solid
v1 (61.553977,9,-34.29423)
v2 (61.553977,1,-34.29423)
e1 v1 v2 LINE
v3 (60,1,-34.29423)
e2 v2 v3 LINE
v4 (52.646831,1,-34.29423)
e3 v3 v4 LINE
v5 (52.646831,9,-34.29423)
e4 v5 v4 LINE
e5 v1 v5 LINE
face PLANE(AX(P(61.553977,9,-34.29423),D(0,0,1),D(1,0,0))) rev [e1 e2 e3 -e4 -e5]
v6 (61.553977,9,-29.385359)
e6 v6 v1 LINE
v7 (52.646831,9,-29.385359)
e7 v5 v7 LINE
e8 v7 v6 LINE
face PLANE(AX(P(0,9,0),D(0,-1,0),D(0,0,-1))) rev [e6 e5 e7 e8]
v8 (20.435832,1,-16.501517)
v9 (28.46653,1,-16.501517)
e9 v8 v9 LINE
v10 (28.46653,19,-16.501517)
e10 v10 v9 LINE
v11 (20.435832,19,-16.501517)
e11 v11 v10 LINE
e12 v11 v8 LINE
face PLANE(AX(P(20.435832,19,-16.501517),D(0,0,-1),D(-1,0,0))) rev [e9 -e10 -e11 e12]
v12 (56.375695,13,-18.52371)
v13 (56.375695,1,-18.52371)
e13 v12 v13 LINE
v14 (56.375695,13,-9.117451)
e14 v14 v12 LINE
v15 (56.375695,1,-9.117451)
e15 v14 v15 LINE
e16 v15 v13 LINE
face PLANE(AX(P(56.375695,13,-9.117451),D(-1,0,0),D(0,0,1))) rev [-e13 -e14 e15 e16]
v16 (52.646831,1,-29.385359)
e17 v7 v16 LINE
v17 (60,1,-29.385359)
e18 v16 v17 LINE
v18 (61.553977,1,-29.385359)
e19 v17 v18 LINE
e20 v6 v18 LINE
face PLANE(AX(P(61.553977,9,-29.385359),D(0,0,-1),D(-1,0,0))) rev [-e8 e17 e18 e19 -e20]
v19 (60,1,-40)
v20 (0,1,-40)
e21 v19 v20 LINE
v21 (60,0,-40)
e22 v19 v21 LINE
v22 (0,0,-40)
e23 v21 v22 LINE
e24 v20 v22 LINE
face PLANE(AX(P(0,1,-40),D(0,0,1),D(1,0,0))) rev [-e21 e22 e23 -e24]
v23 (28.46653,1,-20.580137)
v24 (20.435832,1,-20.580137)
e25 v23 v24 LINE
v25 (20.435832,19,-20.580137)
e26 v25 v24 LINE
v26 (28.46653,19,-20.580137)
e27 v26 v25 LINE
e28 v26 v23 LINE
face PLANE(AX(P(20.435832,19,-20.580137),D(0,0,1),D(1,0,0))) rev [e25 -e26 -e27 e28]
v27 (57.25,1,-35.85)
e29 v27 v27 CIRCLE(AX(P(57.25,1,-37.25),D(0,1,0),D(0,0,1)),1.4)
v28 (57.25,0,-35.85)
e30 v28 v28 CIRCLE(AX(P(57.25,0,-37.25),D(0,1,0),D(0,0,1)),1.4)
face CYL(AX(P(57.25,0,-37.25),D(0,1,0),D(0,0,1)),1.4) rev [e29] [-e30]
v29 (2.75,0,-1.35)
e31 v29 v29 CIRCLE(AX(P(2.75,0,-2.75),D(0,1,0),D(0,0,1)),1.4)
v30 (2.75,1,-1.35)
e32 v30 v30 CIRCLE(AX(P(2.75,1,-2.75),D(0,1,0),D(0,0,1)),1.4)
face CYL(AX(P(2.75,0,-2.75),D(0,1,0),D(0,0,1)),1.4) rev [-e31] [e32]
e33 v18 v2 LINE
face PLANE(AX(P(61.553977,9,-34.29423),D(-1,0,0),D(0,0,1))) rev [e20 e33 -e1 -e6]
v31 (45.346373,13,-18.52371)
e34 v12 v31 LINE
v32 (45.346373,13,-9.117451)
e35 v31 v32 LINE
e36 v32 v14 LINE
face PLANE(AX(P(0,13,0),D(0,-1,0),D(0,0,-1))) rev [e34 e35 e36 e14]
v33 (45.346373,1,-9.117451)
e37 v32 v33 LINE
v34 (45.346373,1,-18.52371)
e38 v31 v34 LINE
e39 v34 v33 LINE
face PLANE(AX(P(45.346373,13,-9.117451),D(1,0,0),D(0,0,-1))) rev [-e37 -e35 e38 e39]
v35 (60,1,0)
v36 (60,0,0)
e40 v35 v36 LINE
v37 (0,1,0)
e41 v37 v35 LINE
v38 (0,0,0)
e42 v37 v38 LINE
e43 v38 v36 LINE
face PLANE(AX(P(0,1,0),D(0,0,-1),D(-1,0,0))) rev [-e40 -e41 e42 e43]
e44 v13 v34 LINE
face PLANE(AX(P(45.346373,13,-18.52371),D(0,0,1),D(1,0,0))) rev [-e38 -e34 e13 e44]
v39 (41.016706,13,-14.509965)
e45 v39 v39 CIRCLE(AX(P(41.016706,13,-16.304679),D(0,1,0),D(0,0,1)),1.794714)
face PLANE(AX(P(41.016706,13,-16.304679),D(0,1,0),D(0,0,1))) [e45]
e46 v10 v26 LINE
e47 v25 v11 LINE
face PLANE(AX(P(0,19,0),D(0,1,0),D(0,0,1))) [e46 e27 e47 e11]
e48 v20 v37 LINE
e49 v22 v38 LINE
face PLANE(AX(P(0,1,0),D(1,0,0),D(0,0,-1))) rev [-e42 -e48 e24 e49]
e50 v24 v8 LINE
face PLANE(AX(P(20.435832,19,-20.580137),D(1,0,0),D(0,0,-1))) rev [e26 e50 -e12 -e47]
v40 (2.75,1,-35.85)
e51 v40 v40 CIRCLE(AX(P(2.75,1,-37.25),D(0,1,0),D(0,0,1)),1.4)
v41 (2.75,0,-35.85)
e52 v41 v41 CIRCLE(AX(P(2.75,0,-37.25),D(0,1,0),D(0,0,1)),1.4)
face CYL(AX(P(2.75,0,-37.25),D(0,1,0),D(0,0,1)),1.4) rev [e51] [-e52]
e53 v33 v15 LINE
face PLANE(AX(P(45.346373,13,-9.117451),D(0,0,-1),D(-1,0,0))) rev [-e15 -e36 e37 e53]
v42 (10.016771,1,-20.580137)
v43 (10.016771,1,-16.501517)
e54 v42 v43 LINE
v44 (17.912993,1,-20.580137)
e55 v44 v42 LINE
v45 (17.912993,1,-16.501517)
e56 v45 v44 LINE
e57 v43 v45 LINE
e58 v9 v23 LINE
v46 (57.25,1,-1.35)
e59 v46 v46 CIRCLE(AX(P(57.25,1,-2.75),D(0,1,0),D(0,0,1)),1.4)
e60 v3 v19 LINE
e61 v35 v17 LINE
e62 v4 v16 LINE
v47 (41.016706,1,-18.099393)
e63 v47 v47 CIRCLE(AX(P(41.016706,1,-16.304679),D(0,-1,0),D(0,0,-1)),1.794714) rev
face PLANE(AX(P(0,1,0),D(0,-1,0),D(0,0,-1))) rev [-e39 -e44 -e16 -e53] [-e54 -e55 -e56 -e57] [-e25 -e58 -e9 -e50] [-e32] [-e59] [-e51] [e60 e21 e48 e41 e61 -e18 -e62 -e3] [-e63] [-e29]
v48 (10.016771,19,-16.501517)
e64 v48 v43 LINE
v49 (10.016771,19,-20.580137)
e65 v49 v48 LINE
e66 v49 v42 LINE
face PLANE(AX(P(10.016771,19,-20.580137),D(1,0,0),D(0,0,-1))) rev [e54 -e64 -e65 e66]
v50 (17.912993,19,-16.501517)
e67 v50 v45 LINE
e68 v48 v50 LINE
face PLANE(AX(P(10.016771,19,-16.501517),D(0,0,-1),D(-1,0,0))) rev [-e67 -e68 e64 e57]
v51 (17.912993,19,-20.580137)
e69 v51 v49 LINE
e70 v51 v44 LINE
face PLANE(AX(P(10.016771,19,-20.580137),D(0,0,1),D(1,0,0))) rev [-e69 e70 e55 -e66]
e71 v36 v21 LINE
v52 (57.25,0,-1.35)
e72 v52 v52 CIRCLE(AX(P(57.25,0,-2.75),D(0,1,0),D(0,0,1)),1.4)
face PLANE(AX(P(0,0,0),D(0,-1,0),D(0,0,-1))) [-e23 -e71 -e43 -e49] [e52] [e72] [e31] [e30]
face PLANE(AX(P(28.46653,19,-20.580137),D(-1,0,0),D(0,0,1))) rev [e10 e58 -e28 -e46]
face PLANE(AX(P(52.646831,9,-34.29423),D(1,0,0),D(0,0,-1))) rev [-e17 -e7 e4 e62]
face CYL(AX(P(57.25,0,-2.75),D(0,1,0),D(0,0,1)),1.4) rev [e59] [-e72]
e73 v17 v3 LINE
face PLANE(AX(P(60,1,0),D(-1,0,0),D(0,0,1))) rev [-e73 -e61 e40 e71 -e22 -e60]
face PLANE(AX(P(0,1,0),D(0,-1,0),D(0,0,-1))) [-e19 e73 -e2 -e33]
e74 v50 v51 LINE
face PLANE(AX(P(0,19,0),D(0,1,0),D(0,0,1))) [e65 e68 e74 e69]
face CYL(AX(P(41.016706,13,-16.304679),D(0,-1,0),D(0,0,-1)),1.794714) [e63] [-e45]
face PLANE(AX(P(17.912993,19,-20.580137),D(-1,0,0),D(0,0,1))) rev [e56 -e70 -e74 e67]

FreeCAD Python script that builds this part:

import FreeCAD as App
import Part
import Sketcher

doc = App.newDocument("Part")
body = doc.addObject("PartDesign::Body", "Body")

# Sketch on XZ plane
sketch1 = body.newObject("Sketcher::SketchObject", "Sketch")
sketch1.AttachmentSupport = (doc.getObject("XZ_Plane"), [""])
sketch1.MapMode = "FlatFace"
sketch1.addGeometry(Part.LineSegment(App.Vector(0, -40, 0), App.Vector(0, 0, 0)), False)
sketch1.addGeometry(Part.LineSegment(App.Vector(0, 0, 0), App.Vector(60, 0, 0)), False)
sketch1.addGeometry(Part.LineSegment(App.Vector(60, 0, 0), App.Vector(60, -40, 0)), False)
sketch1.addGeometry(Part.LineSegment(App.Vector(60, -40, 0), App.Vector(0, -40, 0)), False)
sketch1.addConstraint(Sketcher.Constraint("Coincident", 0, 2, 1, 1))
sketch1.addConstraint(Sketcher.Constraint("Coincident", 1, 2, 2, 1))
sketch1.addConstraint(Sketcher.Constraint("Coincident", 2, 2, 3, 1))
sketch1.addConstraint(Sketcher.Constraint("Coincident", 3, 2, 0, 1))
sketch1.addConstraint(Sketcher.Constraint("Vertical", 0))
sketch1.addConstraint(Sketcher.Constraint("Horizontal", 1))
sketch1.addConstraint(Sketcher.Constraint("Vertical", 2))
sketch1.addConstraint(Sketcher.Constraint("Horizontal", 3))
sketch1.addConstraint(Sketcher.Constraint("Coincident", 0, 2, -1, 1))
sketch1.addConstraint(Sketcher.Constraint("DistanceX", 1, 1, 1, 2, 60.0))
sketch1.addConstraint(Sketcher.Constraint("DistanceY", 0, 1, 0, 2, 40.0))
pad1 = body.newObject("PartDesign::Pad", "Pad")
pad1.Profile = sketch1
pad1.Length = 1
pad1.Reversed = True

# Sketch on XZ plane
sketch2 = body.newObject("Sketcher::SketchObject", "Sketch001")
sketch2.AttachmentSupport = (doc.getObject("XZ_Plane"), [""])
sketch2.MapMode = "FlatFace"
sketch2.AttachmentOffset = App.Placement(App.Vector(0, 0, -1), App.Rotation())
sketch2.addGeometry(Part.Circle(App.Vector(2.8, -37.2, 0), App.Vector(0, 0, 1), 1.4), False)
sketch2.addGeometry(Part.Circle(App.Vector(57.2, -37.2, 0), App.Vector(0, 0, 1), 1.4), False)
sketch2.addGeometry(Part.Circle(App.Vector(57.2, -2.8, 0), App.Vector(0, 0, 1), 1.4), False)
sketch2.addGeometry(Part.Circle(App.Vector(2.8, -2.8, 0), App.Vector(0, 0, 1), 1.4), False)
sketch2.addConstraint(Sketcher.Constraint("Equal", 0, 1))
sketch2.addConstraint(Sketcher.Constraint("Equal", 1, 2))
sketch2.addConstraint(Sketcher.Constraint("Equal", 2, 3))
sketch2.addConstraint(Sketcher.Constraint("Horizontal", 0, 3, 1, 3))
sketch2.addConstraint(Sketcher.Constraint("Horizontal", 2, 3, 3, 3))
sketch2.addConstraint(Sketcher.Constraint("Vertical", 1, 3, 2, 3))
sketch2.addConstraint(Sketcher.Constraint("Vertical", 0, 3, 3, 3))
sketch2.addConstraint(Sketcher.Constraint("Diameter", 0, 2.8))
sketch2.addConstraint(Sketcher.Constraint("DistanceX", 0, 3, 1, 3, 54.5))
sketch2.addConstraint(Sketcher.Constraint("DistanceY", 1, 3, 2, 3, 34.5))
sketch2.addConstraint(Sketcher.Constraint("DistanceX", -1, 1, 0, 3, 2.75))
sketch2.addConstraint(Sketcher.Constraint("DistanceY", 0, 3, -1, 1, 37.25))
pocket1 = body.newObject("PartDesign::Pocket", "Pocket")
pocket1.Profile = sketch2
pocket1.Type = "ThroughAll"
pocket1.Reversed = True

# Sketch on XZ plane
sketch3 = body.newObject("Sketcher::SketchObject", "Sketch002")
sketch3.AttachmentSupport = (doc.getObject("XZ_Plane"), [""])
sketch3.MapMode = "FlatFace"
sketch3.AttachmentOffset = App.Placement(App.Vector(0, 0, -1), App.Rotation())
sketch3.addGeometry(Part.Circle(App.Vector(41, -16.3, 0), App.Vector(0, 0, 1), 1.8), False)
sketch3.addGeometry(Part.LineSegment(App.Vector(45.3, -18.5, 0), App.Vector(45.3, -9.1, 0)), False)
sketch3.addGeometry(Part.LineSegment(App.Vector(45.3, -9.1, 0), App.Vector(56.4, -9.1, 0)), False)
sketch3.addGeometry(Part.LineSegment(App.Vector(56.4, -9.1, 0), App.Vector(56.4, -18.5, 0)), False)
sketch3.addGeometry(Part.LineSegment(App.Vector(56.4, -18.5, 0), App.Vector(45.3, -18.5, 0)), False)
sketch3.addConstraint(Sketcher.Constraint("Coincident", 1, 2, 2, 1))
sketch3.addConstraint(Sketcher.Constraint("Coincident", 2, 2, 3, 1))
sketch3.addConstraint(Sketcher.Constraint("Coincident", 3, 2, 4, 1))
sketch3.addConstraint(Sketcher.Constraint("Coincident", 4, 2, 1, 1))
sketch3.addConstraint(Sketcher.Constraint("Vertical", 1))
sketch3.addConstraint(Sketcher.Constraint("Horizontal", 2))
sketch3.addConstraint(Sketcher.Constraint("Vertical", 3))
sketch3.addConstraint(Sketcher.Constraint("Horizontal", 4))
sketch3.addConstraint(Sketcher.Constraint("Diameter", 0, 3.589428))
sketch3.addConstraint(Sketcher.Constraint("DistanceX", 2, 1, 2, 2, 11.029321))
sketch3.addConstraint(Sketcher.Constraint("DistanceY", 1, 1, 1, 2, 9.40626))
sketch3.addConstraint(Sketcher.Constraint("DistanceY", 0, 3, -1, 1, 16.304679))
sketch3.addConstraint(Sketcher.Constraint("DistanceY", 1, 2, -1, 1, 9.117451))
sketch3.addConstraint(Sketcher.Constraint("DistanceX", 0, 3, 2, 2, 15.358988))
sketch3.addConstraint(Sketcher.Constraint("DistanceX", -1, 1, 0, 3, 41.016706))
pad2 = body.newObject("PartDesign::Pad", "Pad001")
pad2.Profile = sketch3
pad2.Length = 12
pad2.Reversed = True

# Sketch on XZ plane
sketch4 = body.newObject("Sketcher::SketchObject", "Sketch003")
sketch4.AttachmentSupport = (doc.getObject("XZ_Plane"), [""])
sketch4.MapMode = "FlatFace"
sketch4.AttachmentOffset = App.Placement(App.Vector(0, 0, -1), App.Rotation())
sketch4.addGeometry(Part.LineSegment(App.Vector(52.6, -34.3, 0), App.Vector(52.6, -29.4, 0)), False)
sketch4.addGeometry(Part.LineSegment(App.Vector(52.6, -29.4, 0), App.Vector(61.6, -29.4, 0)), False)
sketch4.addGeometry(Part.LineSegment(App.Vector(61.6, -29.4, 0), App.Vector(61.6, -34.3, 0)), False)
sketch4.addGeometry(Part.LineSegment(App.Vector(61.6, -34.3, 0), App.Vector(52.6, -34.3, 0)), False)
sketch4.addConstraint(Sketcher.Constraint("Coincident", 0, 2, 1, 1))
sketch4.addConstraint(Sketcher.Constraint("Coincident", 1, 2, 2, 1))
sketch4.addConstraint(Sketcher.Constraint("Coincident", 2, 2, 3, 1))
sketch4.addConstraint(Sketcher.Constraint("Coincident", 3, 2, 0, 1))
sketch4.addConstraint(Sketcher.Constraint("Vertical", 0))
sketch4.addConstraint(Sketcher.Constraint("Horizontal", 1))
sketch4.addConstraint(Sketcher.Constraint("Vertical", 2))
sketch4.addConstraint(Sketcher.Constraint("Horizontal", 3))
sketch4.addConstraint(Sketcher.Constraint("DistanceY", 0, 1, 0, 2, 4.908871))
sketch4.addConstraint(Sketcher.Constraint("DistanceX", 1, 1, 1, 2, 8.907147))
sketch4.addConstraint(Sketcher.Constraint("DistanceX", -1, 1, 0, 2, 52.646831))
sketch4.addConstraint(Sketcher.Constraint("DistanceY", 0, 2, -1, 1, 29.385359))
pad3 = body.newObject("PartDesign::Pad", "Pad002")
pad3.Profile = sketch4
pad3.Length = 8
pad3.Reversed = True

# Sketch on XZ plane
sketch5 = body.newObject("Sketcher::SketchObject", "Sketch004")
sketch5.AttachmentSupport = (doc.getObject("XZ_Plane"), [""])
sketch5.MapMode = "FlatFace"
sketch5.AttachmentOffset = App.Placement(App.Vector(0, 0, -1), App.Rotation())
sketch5.addGeometry(Part.LineSegment(App.Vector(10, -20.6, 0), App.Vector(10, -16.5, 0)), False)
sketch5.addGeometry(Part.LineSegment(App.Vector(10, -16.5, 0), App.Vector(17.9, -16.5, 0)), False)
sketch5.addGeometry(Part.LineSegment(App.Vector(17.9, -16.5, 0), App.Vector(17.9, -20.6, 0)), False)
sketch5.addGeometry(Part.LineSegment(App.Vector(17.9, -20.6, 0), App.Vector(10, -20.6, 0)), False)
sketch5.addGeometry(Part.LineSegment(App.Vector(20.4, -20.6, 0), App.Vector(20.4, -16.5, 0)), False)
sketch5.addGeometry(Part.LineSegment(App.Vector(20.4, -16.5, 0), App.Vector(28.5, -16.5, 0)), False)
sketch5.addGeometry(Part.LineSegment(App.Vector(28.5, -16.5, 0), App.Vector(28.5, -20.6, 0)), False)
sketch5.addGeometry(Part.LineSegment(App.Vector(28.5, -20.6, 0), App.Vector(20.4, -20.6, 0)), False)
sketch5.addConstraint(Sketcher.Constraint("Coincident", 0, 2, 1, 1))
sketch5.addConstraint(Sketcher.Constraint("Coincident", 1, 2, 2, 1))
sketch5.addConstraint(Sketcher.Constraint("Coincident", 2, 2, 3, 1))
sketch5.addConstraint(Sketcher.Constraint("Coincident", 3, 2, 0, 1))
sketch5.addConstraint(Sketcher.Constraint("Coincident", 4, 2, 5, 1))
sketch5.addConstraint(Sketcher.Constraint("Coincident", 5, 2, 6, 1))
sketch5.addConstraint(Sketcher.Constraint("Coincident", 6, 2, 7, 1))
sketch5.addConstraint(Sketcher.Constraint("Coincident", 7, 2, 4, 1))
sketch5.addConstraint(Sketcher.Constraint("Vertical", 0))
sketch5.addConstraint(Sketcher.Constraint("Horizontal", 1))
sketch5.addConstraint(Sketcher.Constraint("Vertical", 2))
sketch5.addConstraint(Sketcher.Constraint("Horizontal", 3))
sketch5.addConstraint(Sketcher.Constraint("Vertical", 4))
sketch5.addConstraint(Sketcher.Constraint("Horizontal", 5))
sketch5.addConstraint(Sketcher.Constraint("Vertical", 6))
sketch5.addConstraint(Sketcher.Constraint("Horizontal", 7))
sketch5.addConstraint(Sketcher.Constraint("Horizontal", 1, 2, 4, 2))
sketch5.addConstraint(Sketcher.Constraint("Horizontal", 3, 2, 6, 2))
sketch5.addConstraint(Sketcher.Constraint("DistanceX", 5, 1, 5, 2, 8.030698))
sketch5.addConstraint(Sketcher.Constraint("DistanceY", 0, 1, 0, 2, 4.07862))
sketch5.addConstraint(Sketcher.Constraint("DistanceX", 1, 1, 1, 2, 7.896222))
sketch5.addConstraint(Sketcher.Constraint("DistanceX", -1, 1, 0, 2, 10.016771))
sketch5.addConstraint(Sketcher.Constraint("DistanceX", -1, 1, 5, 2, 28.46653))
sketch5.addConstraint(Sketcher.Constraint("DistanceY", 0, 2, -1, 1, 16.501517))
pad4 = body.newObject("PartDesign::Pad", "Pad003")
pad4.Profile = sketch5
pad4.Length = 18
pad4.Reversed = True

doc.recompute()
